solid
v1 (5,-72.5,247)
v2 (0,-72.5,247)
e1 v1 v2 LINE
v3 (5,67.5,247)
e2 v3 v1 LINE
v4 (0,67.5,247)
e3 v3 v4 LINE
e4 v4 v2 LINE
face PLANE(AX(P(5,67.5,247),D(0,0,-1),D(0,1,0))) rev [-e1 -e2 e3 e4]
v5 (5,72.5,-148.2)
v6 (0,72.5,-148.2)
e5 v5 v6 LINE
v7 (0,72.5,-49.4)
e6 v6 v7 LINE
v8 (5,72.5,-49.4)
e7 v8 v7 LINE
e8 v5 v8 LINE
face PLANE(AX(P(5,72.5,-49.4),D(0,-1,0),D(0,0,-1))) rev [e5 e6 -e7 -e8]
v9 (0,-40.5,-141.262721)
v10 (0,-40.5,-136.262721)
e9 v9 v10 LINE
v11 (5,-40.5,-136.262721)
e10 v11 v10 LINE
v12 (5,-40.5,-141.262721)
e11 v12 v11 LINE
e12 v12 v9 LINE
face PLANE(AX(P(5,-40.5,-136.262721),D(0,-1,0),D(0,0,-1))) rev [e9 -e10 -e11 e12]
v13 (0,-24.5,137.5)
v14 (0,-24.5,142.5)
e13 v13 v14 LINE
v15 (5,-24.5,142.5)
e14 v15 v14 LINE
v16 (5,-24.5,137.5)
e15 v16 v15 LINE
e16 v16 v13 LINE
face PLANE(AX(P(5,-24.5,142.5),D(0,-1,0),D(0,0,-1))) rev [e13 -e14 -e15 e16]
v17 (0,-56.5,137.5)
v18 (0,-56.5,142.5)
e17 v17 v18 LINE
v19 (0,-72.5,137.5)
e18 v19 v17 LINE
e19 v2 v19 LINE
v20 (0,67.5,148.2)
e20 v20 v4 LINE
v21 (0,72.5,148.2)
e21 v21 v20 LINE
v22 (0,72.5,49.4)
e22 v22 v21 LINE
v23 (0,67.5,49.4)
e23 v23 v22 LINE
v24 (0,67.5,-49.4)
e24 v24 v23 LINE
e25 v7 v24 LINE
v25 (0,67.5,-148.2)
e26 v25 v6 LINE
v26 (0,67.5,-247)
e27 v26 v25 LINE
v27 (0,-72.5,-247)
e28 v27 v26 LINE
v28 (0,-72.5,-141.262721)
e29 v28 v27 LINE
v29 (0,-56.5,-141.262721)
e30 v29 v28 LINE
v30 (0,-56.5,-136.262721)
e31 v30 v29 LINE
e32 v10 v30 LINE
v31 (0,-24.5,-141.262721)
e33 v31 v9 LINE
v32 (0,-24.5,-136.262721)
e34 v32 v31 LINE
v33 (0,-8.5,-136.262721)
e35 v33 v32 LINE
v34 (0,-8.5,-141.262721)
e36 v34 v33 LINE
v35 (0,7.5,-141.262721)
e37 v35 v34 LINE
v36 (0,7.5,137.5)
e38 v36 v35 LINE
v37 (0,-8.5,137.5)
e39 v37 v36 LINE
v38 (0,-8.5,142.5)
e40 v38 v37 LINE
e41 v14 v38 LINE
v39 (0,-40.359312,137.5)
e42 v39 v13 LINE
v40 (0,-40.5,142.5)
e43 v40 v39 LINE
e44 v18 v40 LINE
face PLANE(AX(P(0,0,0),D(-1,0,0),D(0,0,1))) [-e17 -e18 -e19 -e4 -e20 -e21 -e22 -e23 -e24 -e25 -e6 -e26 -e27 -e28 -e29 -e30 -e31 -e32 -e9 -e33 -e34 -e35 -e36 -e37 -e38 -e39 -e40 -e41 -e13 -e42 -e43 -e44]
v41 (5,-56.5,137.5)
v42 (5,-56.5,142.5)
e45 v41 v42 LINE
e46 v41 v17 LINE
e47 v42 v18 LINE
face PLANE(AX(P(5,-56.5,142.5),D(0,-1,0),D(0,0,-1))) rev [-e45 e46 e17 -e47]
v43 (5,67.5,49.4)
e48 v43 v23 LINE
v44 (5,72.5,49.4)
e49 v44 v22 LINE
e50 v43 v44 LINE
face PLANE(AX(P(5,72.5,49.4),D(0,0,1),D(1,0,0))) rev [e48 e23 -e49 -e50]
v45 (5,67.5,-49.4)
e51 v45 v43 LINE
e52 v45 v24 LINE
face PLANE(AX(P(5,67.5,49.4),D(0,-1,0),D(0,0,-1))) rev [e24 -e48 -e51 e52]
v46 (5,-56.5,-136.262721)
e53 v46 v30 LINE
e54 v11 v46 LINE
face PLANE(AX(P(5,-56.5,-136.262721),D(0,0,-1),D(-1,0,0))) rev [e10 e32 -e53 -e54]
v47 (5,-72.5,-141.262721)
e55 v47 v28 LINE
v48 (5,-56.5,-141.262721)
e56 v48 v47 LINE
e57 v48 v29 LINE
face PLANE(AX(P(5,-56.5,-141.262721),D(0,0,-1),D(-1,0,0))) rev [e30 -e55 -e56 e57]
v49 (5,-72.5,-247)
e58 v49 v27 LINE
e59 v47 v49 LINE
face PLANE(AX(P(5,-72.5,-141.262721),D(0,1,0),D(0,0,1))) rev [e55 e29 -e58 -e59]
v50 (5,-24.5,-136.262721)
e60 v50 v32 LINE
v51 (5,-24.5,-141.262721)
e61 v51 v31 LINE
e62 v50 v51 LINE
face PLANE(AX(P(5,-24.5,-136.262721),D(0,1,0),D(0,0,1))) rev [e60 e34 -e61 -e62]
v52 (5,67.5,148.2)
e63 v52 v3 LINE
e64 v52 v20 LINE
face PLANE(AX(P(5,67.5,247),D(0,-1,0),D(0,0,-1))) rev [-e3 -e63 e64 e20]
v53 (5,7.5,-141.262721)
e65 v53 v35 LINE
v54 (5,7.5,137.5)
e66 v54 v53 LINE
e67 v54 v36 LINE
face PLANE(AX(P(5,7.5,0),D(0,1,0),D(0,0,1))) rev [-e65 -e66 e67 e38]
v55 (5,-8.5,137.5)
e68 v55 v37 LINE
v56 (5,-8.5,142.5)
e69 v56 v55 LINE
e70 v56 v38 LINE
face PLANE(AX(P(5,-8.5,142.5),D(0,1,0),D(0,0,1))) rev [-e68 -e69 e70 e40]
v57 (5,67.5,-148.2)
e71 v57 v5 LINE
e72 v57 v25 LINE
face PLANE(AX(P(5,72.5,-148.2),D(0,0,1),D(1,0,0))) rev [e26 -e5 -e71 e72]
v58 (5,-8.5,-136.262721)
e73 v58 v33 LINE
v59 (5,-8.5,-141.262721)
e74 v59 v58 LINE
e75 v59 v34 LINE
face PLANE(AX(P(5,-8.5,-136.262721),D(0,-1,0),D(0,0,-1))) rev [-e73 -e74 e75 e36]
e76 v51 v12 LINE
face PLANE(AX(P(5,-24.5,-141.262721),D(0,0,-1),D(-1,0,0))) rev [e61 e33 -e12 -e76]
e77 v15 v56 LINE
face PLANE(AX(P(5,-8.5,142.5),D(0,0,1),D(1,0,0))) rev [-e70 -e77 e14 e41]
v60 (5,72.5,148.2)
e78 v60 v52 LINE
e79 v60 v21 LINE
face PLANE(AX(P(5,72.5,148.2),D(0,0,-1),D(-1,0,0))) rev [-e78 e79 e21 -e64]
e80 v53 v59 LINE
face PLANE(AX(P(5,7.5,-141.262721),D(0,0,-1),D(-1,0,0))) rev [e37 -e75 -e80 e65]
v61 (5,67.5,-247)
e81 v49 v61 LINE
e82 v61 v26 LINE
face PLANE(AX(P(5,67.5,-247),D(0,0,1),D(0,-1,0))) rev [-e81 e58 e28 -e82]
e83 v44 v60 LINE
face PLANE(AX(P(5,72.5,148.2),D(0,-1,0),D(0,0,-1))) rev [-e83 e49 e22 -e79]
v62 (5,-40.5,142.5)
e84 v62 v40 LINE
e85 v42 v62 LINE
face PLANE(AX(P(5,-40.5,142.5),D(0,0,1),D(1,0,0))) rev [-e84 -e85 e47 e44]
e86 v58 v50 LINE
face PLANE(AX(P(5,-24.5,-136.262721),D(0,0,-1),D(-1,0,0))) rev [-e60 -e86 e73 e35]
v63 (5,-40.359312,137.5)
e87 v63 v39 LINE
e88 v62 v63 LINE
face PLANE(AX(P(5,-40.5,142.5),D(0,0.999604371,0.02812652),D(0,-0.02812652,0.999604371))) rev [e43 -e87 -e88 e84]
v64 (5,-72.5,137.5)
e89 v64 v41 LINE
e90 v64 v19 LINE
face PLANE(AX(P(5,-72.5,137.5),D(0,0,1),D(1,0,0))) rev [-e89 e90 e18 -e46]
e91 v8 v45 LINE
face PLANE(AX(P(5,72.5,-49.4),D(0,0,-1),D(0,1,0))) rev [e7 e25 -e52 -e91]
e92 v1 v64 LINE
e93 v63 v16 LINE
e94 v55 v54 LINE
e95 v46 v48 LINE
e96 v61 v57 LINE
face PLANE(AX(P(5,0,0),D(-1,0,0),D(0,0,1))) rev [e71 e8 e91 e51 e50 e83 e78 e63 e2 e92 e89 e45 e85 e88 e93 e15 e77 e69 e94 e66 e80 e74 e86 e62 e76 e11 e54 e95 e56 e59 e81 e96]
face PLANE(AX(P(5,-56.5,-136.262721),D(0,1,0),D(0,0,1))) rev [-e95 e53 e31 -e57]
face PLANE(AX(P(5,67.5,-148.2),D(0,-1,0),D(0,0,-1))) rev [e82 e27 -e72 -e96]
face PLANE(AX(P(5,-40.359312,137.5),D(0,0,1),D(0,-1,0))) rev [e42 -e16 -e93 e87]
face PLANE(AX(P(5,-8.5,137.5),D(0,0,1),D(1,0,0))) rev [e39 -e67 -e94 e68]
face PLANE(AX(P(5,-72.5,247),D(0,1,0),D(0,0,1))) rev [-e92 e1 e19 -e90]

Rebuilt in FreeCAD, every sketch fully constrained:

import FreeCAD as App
import Part
import Sketcher

V = App.Vector


def add_polygon(sketch, points):
    """Adds a closed chain of lines whose ends are joined by coincident constraints."""
    first, n = sketch.GeometryCount, len(points)
    for a, b in zip(points, points[1:] + points[:1]):
        sketch.addGeometry(Part.LineSegment(App.Vector(*a, 0), App.Vector(*b, 0)), False)
    for i in range(n):
        sketch.addConstraint(Sketcher.Constraint("Coincident", first + i, 2, first + (i + 1) % n, 1))

doc = App.newDocument("Part")
params = doc.addObject("Spreadsheet::Sheet", "Params")
for row, (alias, value) in enumerate([
    ("sketch1_width", "140 mm"),
    ("sketch1_width2", "16 mm"),
    ("sketch1_width3", "5 mm"),
    ("sketch1_height", "98.8 mm"),
    ("sketch1_height2", "109.5 mm"),
    ("pad1_length", "5 mm"),
], start=1):
    params.set(f"A{row}", alias)
    params.set(f"B{row}", "=" + value)
    params.setAlias(f"B{row}", alias)

body = doc.addObject("PartDesign::Body", "Body")

sketch1 = body.newObject("Sketcher::SketchObject", "Sketch")
sketch1.AttachmentSupport = (doc.getObject("YZ_Plane"), [""])
sketch1.MapMode = "FlatFace"
add_polygon(sketch1, [(67.5, 148.2), (67.5, 247), (-72.5, 247), (-72.5, 137.5), (-56.5, 137.5), (-56.5, 142.5), (-40.5, 142.5), (-40.359312, 137.5), (-24.5, 137.5), (-24.5, 142.5), (-8.5, 142.5), (-8.5, 137.5), (7.5, 137.5), (7.5, -141.262721), (-8.5, -141.262721), (-8.5, -136.262721), (-24.5, -136.262721), (-24.5, -141.262721), (-40.5, -141.262721), (-40.5, -136.262721), (-56.5, -136.262721), (-56.5, -141.262721), (-72.5, -141.262721), (-72.5, -247), (67.5, -247), (67.5, -148.2), (72.5, -148.2), (72.5, -49.4), (67.5, -49.4), (67.5, 49.4), (72.5, 49.4), (72.5, 148.2)])
sketch1.addConstraint(Sketcher.Constraint("Vertical", 0))
sketch1.addConstraint(Sketcher.Constraint("Horizontal", 1))
sketch1.addConstraint(Sketcher.Constraint("Vertical", 2))
sketch1.addConstraint(Sketcher.Constraint("Horizontal", 3))
sketch1.addConstraint(Sketcher.Constraint("Vertical", 4))
sketch1.addConstraint(Sketcher.Constraint("Horizontal", 5))
sketch1.addConstraint(Sketcher.Constraint("Horizontal", 7))
sketch1.addConstraint(Sketcher.Constraint("Vertical", 8))
sketch1.addConstraint(Sketcher.Constraint("Horizontal", 9))
sketch1.addConstraint(Sketcher.Constraint("Vertical", 10))
sketch1.addConstraint(Sketcher.Constraint("Horizontal", 11))
sketch1.addConstraint(Sketcher.Constraint("Vertical", 12))
sketch1.addConstraint(Sketcher.Constraint("Horizontal", 13))
sketch1.addConstraint(Sketcher.Constraint("Vertical", 14))
sketch1.addConstraint(Sketcher.Constraint("Horizontal", 15))
sketch1.addConstraint(Sketcher.Constraint("Vertical", 16))
sketch1.addConstraint(Sketcher.Constraint("Horizontal", 17))
sketch1.addConstraint(Sketcher.Constraint("Vertical", 18))
sketch1.addConstraint(Sketcher.Constraint("Horizontal", 19))
sketch1.addConstraint(Sketcher.Constraint("Vertical", 20))
sketch1.addConstraint(Sketcher.Constraint("Horizontal", 21))
sketch1.addConstraint(Sketcher.Constraint("Vertical", 22))
sketch1.addConstraint(Sketcher.Constraint("Horizontal", 23))
sketch1.addConstraint(Sketcher.Constraint("Vertical", 24))
sketch1.addConstraint(Sketcher.Constraint("Horizontal", 25))
sketch1.addConstraint(Sketcher.Constraint("Vertical", 26))
sketch1.addConstraint(Sketcher.Constraint("Horizontal", 27))
sketch1.addConstraint(Sketcher.Constraint("Vertical", 28))
sketch1.addConstraint(Sketcher.Constraint("Horizontal", 29))
sketch1.addConstraint(Sketcher.Constraint("Vertical", 30))
sketch1.addConstraint(Sketcher.Constraint("Horizontal", 31))
sketch1.addConstraint(Sketcher.Constraint("Symmetric", 1, 2, 22, 2, -1))
sketch1.addConstraint(Sketcher.Constraint("Symmetric", 26, 2, 29, 2, -1))
sketch1.addConstraint(Sketcher.Constraint("Symmetric", 24, 2, 31, 2, -1))
sketch1.addConstraint(Sketcher.Constraint("Horizontal", 3, 2, 6, 2))
sketch1.addConstraint(Sketcher.Constraint("Horizontal", 5, 2, 8, 2))
sketch1.addConstraint(Sketcher.Constraint("Horizontal", 7, 2, 10, 2))
sketch1.addConstraint(Sketcher.Constraint("Horizontal", 13, 2, 16, 2))
sketch1.addConstraint(Sketcher.Constraint("Horizontal", 15, 2, 18, 2))
sketch1.addConstraint(Sketcher.Constraint("Horizontal", 17, 2, 20, 2))
sketch1.addConstraint(Sketcher.Constraint("Vertical", 10, 2, 13, 2))
sketch1.addConstraint(Sketcher.Constraint("Vertical", 8, 2, 15, 2))
sketch1.addConstraint(Sketcher.Constraint("Vertical", 5, 2, 17, 2))
sketch1.addConstraint(Sketcher.Constraint("Vertical", 4, 2, 19, 2))
sketch1.addConstraint(Sketcher.Constraint("Vertical", 24, 2, 27, 2))
sketch1.addConstraint(Sketcher.Constraint("Equal", 3, 5))
sketch1.addConstraint(Sketcher.Constraint("Equal", 5, 9))
sketch1.addConstraint(Sketcher.Constraint("Equal", 9, 11))
sketch1.addConstraint(Sketcher.Constraint("Equal", 15, 17))
sketch1.addConstraint(Sketcher.Constraint("Equal", 31, 4))
sketch1.addConstraint(Sketcher.Constraint("Equal", 10, 14))
sketch1.addConstraint(Sketcher.Constraint("Equal", 24, 26))
sketch1.addConstraint(Sketcher.Constraint("Equal", 26, 28))
sketch1.addConstraint(Sketcher.Constraint("DistanceX", 1, 2, 1, 1, 140.0))
sketch1.addConstraint(Sketcher.Constraint("DistanceX", 3, 1, 3, 2, 16.0))
sketch1.addConstraint(Sketcher.Constraint("DistanceX", 25, 1, 25, 2, 5.0))
sketch1.addConstraint(Sketcher.Constraint("DistanceY", 0, 1, 0, 2, 98.8))
sketch1.addConstraint(Sketcher.Constraint("DistanceY", 2, 2, 2, 1, 109.5))
sketch1.addConstraint(Sketcher.Constraint("DistanceX", -1, 1, 0, 2, 67.5))
sketch1.addConstraint(Sketcher.Constraint("DistanceX", 7, 1, 7, 2, 15.859312))
sketch1.addConstraint(Sketcher.Constraint("DistanceY", 12, 2, 12, 1, 278.762721))
sketch1.setExpression("Constraints[85]", "Params.sketch1_width")
sketch1.setExpression("Constraints[86]", "Params.sketch1_width2")
sketch1.setExpression("Constraints[87]", "Params.sketch1_width3")
sketch1.setExpression("Constraints[88]", "Params.sketch1_height")
sketch1.setExpression("Constraints[89]", "Params.sketch1_height2")
pad1 = body.newObject("PartDesign::Pad", "Pad")
pad1.Profile = sketch1
pad1.setExpression("Length", "Params.pad1_length")

doc.recompute()
